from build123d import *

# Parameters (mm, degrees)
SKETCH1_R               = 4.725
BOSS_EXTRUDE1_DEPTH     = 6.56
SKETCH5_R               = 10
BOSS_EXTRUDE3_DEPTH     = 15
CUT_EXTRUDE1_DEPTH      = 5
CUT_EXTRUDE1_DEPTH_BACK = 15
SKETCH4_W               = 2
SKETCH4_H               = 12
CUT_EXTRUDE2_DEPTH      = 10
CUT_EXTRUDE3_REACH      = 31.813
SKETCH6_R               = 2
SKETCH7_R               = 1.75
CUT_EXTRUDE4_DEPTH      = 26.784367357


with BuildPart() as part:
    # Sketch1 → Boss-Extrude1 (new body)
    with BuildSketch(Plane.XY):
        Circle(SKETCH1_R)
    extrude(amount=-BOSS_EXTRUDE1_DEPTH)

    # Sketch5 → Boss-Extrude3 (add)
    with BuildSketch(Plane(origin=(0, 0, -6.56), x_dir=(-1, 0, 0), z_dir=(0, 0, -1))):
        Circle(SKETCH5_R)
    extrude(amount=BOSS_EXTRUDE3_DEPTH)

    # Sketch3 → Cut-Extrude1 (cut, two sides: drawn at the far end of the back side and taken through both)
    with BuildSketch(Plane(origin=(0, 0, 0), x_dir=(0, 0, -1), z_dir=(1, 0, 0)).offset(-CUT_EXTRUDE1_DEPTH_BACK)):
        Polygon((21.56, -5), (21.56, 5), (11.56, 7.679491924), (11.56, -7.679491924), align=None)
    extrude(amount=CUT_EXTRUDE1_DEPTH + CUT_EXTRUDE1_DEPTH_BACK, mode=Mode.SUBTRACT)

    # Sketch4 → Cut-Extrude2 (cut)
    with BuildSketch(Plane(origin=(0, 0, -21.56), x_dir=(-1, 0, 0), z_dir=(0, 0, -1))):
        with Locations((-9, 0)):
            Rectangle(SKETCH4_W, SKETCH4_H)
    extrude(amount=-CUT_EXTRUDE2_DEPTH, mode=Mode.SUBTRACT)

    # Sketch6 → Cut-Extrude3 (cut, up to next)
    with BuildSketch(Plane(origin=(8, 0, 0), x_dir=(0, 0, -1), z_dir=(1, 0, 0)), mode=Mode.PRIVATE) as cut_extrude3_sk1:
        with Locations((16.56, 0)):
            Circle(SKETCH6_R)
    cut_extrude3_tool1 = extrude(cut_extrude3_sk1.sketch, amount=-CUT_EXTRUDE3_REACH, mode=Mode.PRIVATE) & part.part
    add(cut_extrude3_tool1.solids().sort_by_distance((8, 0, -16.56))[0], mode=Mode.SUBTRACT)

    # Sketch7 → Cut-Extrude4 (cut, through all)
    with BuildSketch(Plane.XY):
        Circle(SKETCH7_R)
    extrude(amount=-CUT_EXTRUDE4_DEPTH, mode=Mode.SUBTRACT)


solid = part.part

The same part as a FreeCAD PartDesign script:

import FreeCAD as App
import Part
import Sketcher
from FreeCAD import Vector
Q = App.Units.Quantity


def add_polygon(sketch, points):
    """Adds a closed chain of lines whose ends are joined by coincident constraints."""
    first, n = sketch.GeometryCount, len(points)
    for a, b in zip(points, points[1:] + points[:1]):
        sketch.addGeometry(Part.LineSegment(App.Vector(*a, 0), App.Vector(*b, 0)), False)
    for i in range(n):
        sketch.addConstraint(Sketcher.Constraint("Coincident", first + i, 2, first + (i + 1) % n, 1))

doc = App.newDocument("Part")
body = doc.addObject("PartDesign::Body", "Body")

# Sketch on XY plane
sketch1 = doc.addObject("Sketcher::SketchObject", "Sketch")
body.addObject(sketch1)
sketch1.AttachmentSupport = (doc.XY_Plane, [""])
sketch1.MapMode = "FlatFace"
sketch1.addGeometry(Part.Circle(Vector(0, 0, 0), Vector(0, 0, 1), 4.725), False)
sketch1.addConstraint(Sketcher.Constraint("Coincident", 0, 3, -1, 1))
sketch1.addConstraint(Sketcher.Constraint("Diameter", 0, 9.45))
pad1 = doc.addObject("PartDesign::Pad", "Pad")
body.addObject(pad1)
pad1.Profile = sketch1
pad1.Length = 6.56
pad1.Reversed = True

# Sketch on XY plane
sketch2 = doc.addObject("Sketcher::SketchObject", "Sketch001")
body.addObject(sketch2)
sketch2.AttachmentSupport = (doc.XY_Plane, [""])
sketch2.MapMode = "FlatFace"
sketch2.AttachmentOffset = App.Placement(Vector(0, 0, -6.56), App.Rotation())
sketch2.addGeometry(Part.Circle(Vector(0, 0, 0), Vector(0, 0, 1), 10), False)
sketch2.addConstraint(Sketcher.Constraint("Coincident", 0, 3, -1, 1))
sketch2.addConstraint(Sketcher.Constraint("Diameter", 0, 20.0))
pad2 = doc.addObject("PartDesign::Pad", "Pad001")
body.addObject(pad2)
pad2.Profile = sketch2
pad2.Length = 15
pad2.Reversed = True

# Sketch on YZ plane
sketch3 = doc.addObject("Sketcher::SketchObject", "Sketch002")
body.addObject(sketch3)
sketch3.AttachmentSupport = (doc.YZ_Plane, [""])
sketch3.MapMode = "FlatFace"
add_polygon(sketch3, [(-5, -21.56), (5, -21.56), (7.679492, -11.56), (-7.679492, -11.56)])  # lines 0-3
sketch3.addConstraint(Sketcher.Constraint("Horizontal", 0))
sketch3.addConstraint(Sketcher.Constraint("Horizontal", 2))
sketch3.addConstraint(Sketcher.Constraint("Equal", 1, 3))
sketch3.addConstraint(Sketcher.Constraint("DistanceX", 0, 1, 0, 2, 10.0))
sketch3.addConstraint(Sketcher.Constraint("Angle", 1, Q("75 deg")))
sketch3.addConstraint(Sketcher.Constraint("DistanceX", -1, 1, 0, 2, 5.0))
sketch3.addConstraint(Sketcher.Constraint("DistanceY", 0, 2, 1, 2, 10.0))
sketch3.addConstraint(Sketcher.Constraint("DistanceY", 0, 2, -1, 1, 21.56))
pocket1 = doc.addObject("PartDesign::Pocket", "Pocket")
body.addObject(pocket1)
pocket1.Profile = sketch3
pocket1.Type = "TwoLengths"
pocket1.Length = 5
pocket1.Length2 = 15
pocket1.Reversed = True

# Sketch on XY plane
sketch4 = doc.addObject("Sketcher::SketchObject", "Sketch003")
body.addObject(sketch4)
sketch4.AttachmentSupport = (doc.XY_Plane, [""])
sketch4.MapMode = "FlatFace"
sketch4.AttachmentOffset = App.Placement(Vector(0, 0, -21.56), App.Rotation())
add_polygon(sketch4, [(10, 6), (10, -6), (8, -6), (8, 6)])  # lines 0-3
sketch4.addConstraint(Sketcher.Constraint("Vertical", 0))
sketch4.addConstraint(Sketcher.Constraint("Horizontal", 1))
sketch4.addConstraint(Sketcher.Constraint("Vertical", 2))
sketch4.addConstraint(Sketcher.Constraint("Horizontal", 3))
sketch4.addConstraint(Sketcher.Constraint("DistanceX", 1, 2, 1, 1, 2.0))
sketch4.addConstraint(Sketcher.Constraint("DistanceY", 0, 2, 0, 1, 12.0))
sketch4.addConstraint(Sketcher.Constraint("DistanceX", -1, 1, 0, 2, 10.0))
sketch4.addConstraint(Sketcher.Constraint("DistanceY", 0, 2, -1, 1, 6.0))
pocket2 = doc.addObject("PartDesign::Pocket", "Pocket001")
body.addObject(pocket2)
pocket2.Profile = sketch4
pocket2.Length = 10
pocket2.Reversed = True

# Sketch on YZ plane
sketch5 = doc.addObject("Sketcher::SketchObject", "Sketch004")
body.addObject(sketch5)
sketch5.AttachmentSupport = (doc.YZ_Plane, [""])
sketch5.MapMode = "FlatFace"
sketch5.AttachmentOffset = App.Placement(Vector(0, 0, 8), App.Rotation())
sketch5.addGeometry(Part.Circle(Vector(0, -16.56, 0), Vector(0, 0, 1), 2), False)
sketch5.addConstraint(Sketcher.Constraint("PointOnObject", 0, 3, -2))
sketch5.addConstraint(Sketcher.Constraint("Diameter", 0, 4.0))
sketch5.addConstraint(Sketcher.Constraint("DistanceY", 0, 3, -1, 1, 16.56))
pocket3 = doc.addObject("PartDesign::Pocket", "Pocket002")
body.addObject(pocket3)
pocket3.Profile = sketch5
pocket3.Type = "UpToFirst"

# Sketch on XY plane
sketch6 = doc.addObject("Sketcher::SketchObject", "Sketch005")
body.addObject(sketch6)
sketch6.AttachmentSupport = (doc.XY_Plane, [""])
sketch6.MapMode = "FlatFace"
sketch6.addGeometry(Part.Circle(Vector(0, 0, 0), Vector(0, 0, 1), 1.75), False)
sketch6.addConstraint(Sketcher.Constraint("Coincident", 0, 3, -1, 1))
sketch6.addConstraint(Sketcher.Constraint("Diameter", 0, 3.5))
pocket4 = doc.addObject("PartDesign::Pocket", "Pocket003")
body.addObject(pocket4)
pocket4.Profile = sketch6
pocket4.Type = "ThroughAll"

doc.recompute()
